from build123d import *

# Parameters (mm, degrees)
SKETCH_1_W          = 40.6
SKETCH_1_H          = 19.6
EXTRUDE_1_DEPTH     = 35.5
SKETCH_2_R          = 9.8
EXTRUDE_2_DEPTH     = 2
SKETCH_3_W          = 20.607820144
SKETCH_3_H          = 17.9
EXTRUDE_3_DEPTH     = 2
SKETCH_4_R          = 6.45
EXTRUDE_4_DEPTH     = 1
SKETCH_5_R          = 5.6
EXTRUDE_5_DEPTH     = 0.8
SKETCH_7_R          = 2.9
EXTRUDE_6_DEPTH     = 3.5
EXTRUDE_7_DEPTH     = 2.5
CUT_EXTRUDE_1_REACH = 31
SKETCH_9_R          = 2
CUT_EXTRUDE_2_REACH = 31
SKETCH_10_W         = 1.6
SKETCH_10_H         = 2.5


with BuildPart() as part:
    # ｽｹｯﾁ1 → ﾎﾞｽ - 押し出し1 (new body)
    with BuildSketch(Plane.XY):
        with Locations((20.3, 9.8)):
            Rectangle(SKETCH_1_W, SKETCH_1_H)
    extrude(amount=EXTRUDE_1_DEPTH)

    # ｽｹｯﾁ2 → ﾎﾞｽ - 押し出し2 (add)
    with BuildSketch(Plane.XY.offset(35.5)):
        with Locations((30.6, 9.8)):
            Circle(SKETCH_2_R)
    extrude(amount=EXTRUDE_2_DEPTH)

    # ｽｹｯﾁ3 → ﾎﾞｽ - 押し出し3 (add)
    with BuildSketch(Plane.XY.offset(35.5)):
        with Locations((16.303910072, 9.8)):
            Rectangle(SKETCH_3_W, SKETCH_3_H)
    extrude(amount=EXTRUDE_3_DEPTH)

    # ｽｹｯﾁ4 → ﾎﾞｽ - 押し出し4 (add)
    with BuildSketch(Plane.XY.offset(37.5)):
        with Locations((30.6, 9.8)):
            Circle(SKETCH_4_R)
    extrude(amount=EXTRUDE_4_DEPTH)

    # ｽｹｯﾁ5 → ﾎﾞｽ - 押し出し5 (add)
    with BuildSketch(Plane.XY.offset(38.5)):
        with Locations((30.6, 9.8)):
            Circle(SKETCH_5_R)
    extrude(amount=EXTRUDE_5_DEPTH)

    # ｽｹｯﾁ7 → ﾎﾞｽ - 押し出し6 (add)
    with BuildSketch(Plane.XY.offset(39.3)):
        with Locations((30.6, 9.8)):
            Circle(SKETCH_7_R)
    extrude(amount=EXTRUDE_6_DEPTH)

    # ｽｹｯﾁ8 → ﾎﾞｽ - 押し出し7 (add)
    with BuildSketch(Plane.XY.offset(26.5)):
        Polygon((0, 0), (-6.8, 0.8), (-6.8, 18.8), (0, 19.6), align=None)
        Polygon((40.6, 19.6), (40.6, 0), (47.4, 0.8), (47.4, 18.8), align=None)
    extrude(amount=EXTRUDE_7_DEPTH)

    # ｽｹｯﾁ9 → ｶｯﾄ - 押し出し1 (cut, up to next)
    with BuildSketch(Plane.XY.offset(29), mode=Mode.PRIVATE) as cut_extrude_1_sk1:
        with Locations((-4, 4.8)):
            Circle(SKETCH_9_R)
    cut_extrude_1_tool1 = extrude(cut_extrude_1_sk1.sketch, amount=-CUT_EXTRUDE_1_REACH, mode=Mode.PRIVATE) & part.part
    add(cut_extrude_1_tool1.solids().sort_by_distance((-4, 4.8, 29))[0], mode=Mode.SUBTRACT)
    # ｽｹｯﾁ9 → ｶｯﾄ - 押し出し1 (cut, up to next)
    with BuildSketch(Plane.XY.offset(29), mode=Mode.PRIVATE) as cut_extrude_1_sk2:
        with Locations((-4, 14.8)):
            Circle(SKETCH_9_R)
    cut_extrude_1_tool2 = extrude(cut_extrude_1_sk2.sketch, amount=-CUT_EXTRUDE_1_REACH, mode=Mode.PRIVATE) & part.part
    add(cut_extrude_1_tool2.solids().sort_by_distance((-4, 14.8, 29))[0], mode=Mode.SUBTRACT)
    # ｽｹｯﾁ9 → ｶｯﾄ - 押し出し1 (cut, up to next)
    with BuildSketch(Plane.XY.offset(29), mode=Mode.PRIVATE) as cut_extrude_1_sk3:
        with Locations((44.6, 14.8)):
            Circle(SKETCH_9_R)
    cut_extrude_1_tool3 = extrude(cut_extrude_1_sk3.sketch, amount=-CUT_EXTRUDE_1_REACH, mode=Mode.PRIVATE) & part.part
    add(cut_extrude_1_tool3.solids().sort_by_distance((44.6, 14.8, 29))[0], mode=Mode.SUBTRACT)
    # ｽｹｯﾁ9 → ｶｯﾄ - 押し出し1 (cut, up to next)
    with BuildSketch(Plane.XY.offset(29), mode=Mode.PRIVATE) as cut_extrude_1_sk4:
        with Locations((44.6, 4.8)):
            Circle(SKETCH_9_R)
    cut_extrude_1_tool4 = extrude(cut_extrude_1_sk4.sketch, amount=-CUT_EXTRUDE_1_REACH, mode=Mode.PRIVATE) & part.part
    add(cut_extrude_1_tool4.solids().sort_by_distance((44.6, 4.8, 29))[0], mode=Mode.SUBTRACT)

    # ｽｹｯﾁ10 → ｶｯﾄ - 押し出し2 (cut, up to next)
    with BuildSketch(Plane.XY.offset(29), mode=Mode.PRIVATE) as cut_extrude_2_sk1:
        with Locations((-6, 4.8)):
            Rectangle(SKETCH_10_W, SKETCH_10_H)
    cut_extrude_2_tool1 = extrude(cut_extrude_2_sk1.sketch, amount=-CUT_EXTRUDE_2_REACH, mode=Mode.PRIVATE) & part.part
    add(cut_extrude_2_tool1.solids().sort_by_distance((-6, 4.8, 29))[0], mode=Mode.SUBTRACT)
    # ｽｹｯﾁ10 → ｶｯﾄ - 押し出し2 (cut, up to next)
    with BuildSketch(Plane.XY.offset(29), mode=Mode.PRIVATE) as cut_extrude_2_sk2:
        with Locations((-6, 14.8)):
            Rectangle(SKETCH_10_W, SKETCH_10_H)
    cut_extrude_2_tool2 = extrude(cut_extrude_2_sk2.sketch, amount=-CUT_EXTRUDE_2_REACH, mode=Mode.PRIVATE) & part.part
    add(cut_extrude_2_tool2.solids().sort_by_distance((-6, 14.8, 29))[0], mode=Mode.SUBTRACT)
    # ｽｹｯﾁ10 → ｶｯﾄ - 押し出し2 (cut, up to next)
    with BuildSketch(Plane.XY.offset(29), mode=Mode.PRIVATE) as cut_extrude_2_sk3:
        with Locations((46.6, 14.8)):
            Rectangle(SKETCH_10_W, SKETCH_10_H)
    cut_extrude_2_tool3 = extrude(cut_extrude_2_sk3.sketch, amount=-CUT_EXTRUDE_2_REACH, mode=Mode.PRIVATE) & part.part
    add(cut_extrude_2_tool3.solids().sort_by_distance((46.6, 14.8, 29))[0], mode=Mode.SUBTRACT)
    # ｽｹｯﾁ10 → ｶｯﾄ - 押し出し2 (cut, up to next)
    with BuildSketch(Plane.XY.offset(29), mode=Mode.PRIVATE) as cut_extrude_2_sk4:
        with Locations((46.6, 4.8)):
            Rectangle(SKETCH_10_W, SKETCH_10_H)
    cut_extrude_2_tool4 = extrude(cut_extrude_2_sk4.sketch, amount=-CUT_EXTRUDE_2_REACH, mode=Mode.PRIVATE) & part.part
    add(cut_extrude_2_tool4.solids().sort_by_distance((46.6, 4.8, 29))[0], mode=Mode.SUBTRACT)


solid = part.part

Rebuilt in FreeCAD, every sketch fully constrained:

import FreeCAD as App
import Part
import Sketcher

V = App.Vector
Q = App.Units.Quantity

doc = App.newDocument("Part")
params = doc.addObject("Spreadsheet::Sheet", "Params")
for row, (alias, value) in enumerate([
    ("sketch1_width", "40.6 mm"),
    ("sketch1_height", "19.6 mm"),
    ("pad1_length", "35.5 mm"),
    ("sketch2_diameter", "19.6 mm"),
    ("pad2_length", "2 mm"),
    ("sketch3_height", "17.9 mm"),
    ("pad3_length", "2 mm"),
    ("sketch4_diameter", "12.9 mm"),
    ("pad4_length", "1 mm"),
    ("sketch5_diameter", "11.2 mm"),
    ("pad5_length", "0.8 mm"),
    ("sketch6_diameter", "5.8 mm"),
    ("pad6_length", "3.5 mm"),
    ("sketch7_height", "18 mm"),
    ("sketch7_height2", "19.6 mm"),
    ("pad7_length", "2.5 mm"),
    ("sketch8_diameter", "4 mm"),
    ("sketch9_diameter", "4 mm"),
    ("sketch10_diameter", "4 mm"),
    ("sketch11_diameter", "4 mm"),
    ("sketch12_width", "1.6 mm"),
    ("sketch12_height", "2.5 mm"),
    ("sketch13_width", "1.6 mm"),
    ("sketch13_height", "2.5 mm"),
    ("sketch14_width", "1.6 mm"),
    ("sketch14_height", "2.5 mm"),
    ("sketch15_width", "1.6 mm"),
    ("sketch15_height", "2.5 mm"),
], start=1):
    params.set(f"A{row}", alias)
    params.set(f"B{row}", "=" + value)
    params.setAlias(f"B{row}", alias)

body = doc.addObject("PartDesign::Body", "Body")

# Sketch on XY plane
sketch1 = body.newObject("Sketcher::SketchObject", "Sketch")
sketch1.AttachmentSupport = (doc.getObject("XY_Plane"), [""])
sketch1.MapMode = "FlatFace"
sketch1.addGeometry([
    Part.LineSegment(V(0, 20, 0), V(0, 0, 0)),
    Part.LineSegment(V(0, 0, 0), V(41, 0, 0)),
    Part.LineSegment(V(41, 0, 0), V(41, 20, 0)),
    Part.LineSegment(V(41, 20, 0), V(0, 20, 0)),
], False)
sketch1.addConstraint([
    Sketcher.Constraint("Coincident", 0, 2, 1, 1),
    Sketcher.Constraint("Coincident", 1, 2, 2, 1),
    Sketcher.Constraint("Coincident", 2, 2, 3, 1),
    Sketcher.Constraint("Coincident", 3, 2, 0, 1),
    Sketcher.Constraint("Vertical", 0),
    Sketcher.Constraint("Horizontal", 1),
    Sketcher.Constraint("Vertical", 2),
    Sketcher.Constraint("Horizontal", 3),
    Sketcher.Constraint("Coincident", 0, 2, -1, 1),
    Sketcher.Constraint("DistanceX", 1, 1, 1, 2, Q("40.6 mm")),
    Sketcher.Constraint("DistanceY", 0, 2, 0, 1, Q("19.6 mm")),
])
sketch1.setExpression("Constraints[9]", "Params.sketch1_width")
sketch1.setExpression("Constraints[10]", "Params.sketch1_height")
pad1 = body.newObject("PartDesign::Pad", "Pad")
pad1.Profile = sketch1
pad1.setExpression("Length", "Params.pad1_length")

# Sketch on XY plane
sketch2 = body.newObject("Sketcher::SketchObject", "Sketch001")
sketch2.AttachmentSupport = (doc.getObject("XY_Plane"), [""])
sketch2.MapMode = "FlatFace"
sketch2.AttachmentOffset = App.Placement(V(0, 0, 35.5), App.Rotation())
sketch2.addGeometry(Part.Circle(V(31, 10, 0), V(0, 0, 1), 10), False)
sketch2.addConstraint([
    Sketcher.Constraint("Diameter", 0, Q("19.6 mm")),
    Sketcher.Constraint("DistanceX", -1, 1, 0, 3, Q("30.6 mm")),
    Sketcher.Constraint("DistanceY", -1, 1, 0, 3, Q("9.8 mm")),
])
sketch2.setExpression("Constraints[0]", "Params.sketch2_diameter")
pad2 = body.newObject("PartDesign::Pad", "Pad001")
pad2.Profile = sketch2
pad2.setExpression("Length", "Params.pad2_length")

# Sketch on XY plane
sketch3 = body.newObject("Sketcher::SketchObject", "Sketch002")
sketch3.AttachmentSupport = (doc.getObject("XY_Plane"), [""])
sketch3.MapMode = "FlatFace"
sketch3.AttachmentOffset = App.Placement(V(0, 0, 35.5), App.Rotation())
sketch3.addGeometry([
    Part.LineSegment(V(6, 19, 0), V(6, 1, 0)),
    Part.LineSegment(V(6, 1, 0), V(27, 1, 0)),
    Part.LineSegment(V(27, 1, 0), V(27, 19, 0)),
    Part.LineSegment(V(27, 19, 0), V(6, 19, 0)),
], False)
sketch3.addConstraint([
    Sketcher.Constraint("Coincident", 0, 2, 1, 1),
    Sketcher.Constraint("Coincident", 1, 2, 2, 1),
    Sketcher.Constraint("Coincident", 2, 2, 3, 1),
    Sketcher.Constraint("Coincident", 3, 2, 0, 1),
    Sketcher.Constraint("Vertical", 0),
    Sketcher.Constraint("Horizontal", 1),
    Sketcher.Constraint("Vertical", 2),
    Sketcher.Constraint("Horizontal", 3),
    Sketcher.Constraint("DistanceY", 0, 2, 0, 1, Q("17.9 mm")),
    Sketcher.Constraint("DistanceX", -1, 1, 0, 2, Q("6 mm")),
    Sketcher.Constraint("DistanceY", -1, 1, 0, 2, Q("0.85 mm")),
    Sketcher.Constraint("DistanceX", 1, 1, 1, 2, Q("20.60782 mm")),
])
sketch3.setExpression("Constraints[8]", "Params.sketch3_height")
pad3 = body.newObject("PartDesign::Pad", "Pad002")
pad3.Profile = sketch3
pad3.setExpression("Length", "Params.pad3_length")

# Sketch on XY plane
sketch4 = body.newObject("Sketcher::SketchObject", "Sketch003")
sketch4.AttachmentSupport = (doc.getObject("XY_Plane"), [""])
sketch4.MapMode = "FlatFace"
sketch4.AttachmentOffset = App.Placement(V(0, 0, 37.5), App.Rotation())
sketch4.addGeometry(Part.Circle(V(31, 10, 0), V(0, 0, 1), 6), False)
sketch4.addConstraint([
    Sketcher.Constraint("Diameter", 0, Q("12.9 mm")),
    Sketcher.Constraint("DistanceX", -1, 1, 0, 3, Q("30.6 mm")),
    Sketcher.Constraint("DistanceY", -1, 1, 0, 3, Q("9.8 mm")),
])
sketch4.setExpression("Constraints[0]", "Params.sketch4_diameter")
pad4 = body.newObject("PartDesign::Pad", "Pad003")
pad4.Profile = sketch4
pad4.setExpression("Length", "Params.pad4_length")

# Sketch on XY plane
sketch5 = body.newObject("Sketcher::SketchObject", "Sketch004")
sketch5.AttachmentSupport = (doc.getObject("XY_Plane"), [""])
sketch5.MapMode = "FlatFace"
sketch5.AttachmentOffset = App.Placement(V(0, 0, 38.5), App.Rotation())
sketch5.addGeometry(Part.Circle(V(31, 10, 0), V(0, 0, 1), 6), False)
sketch5.addConstraint([
    Sketcher.Constraint("Diameter", 0, Q("11.2 mm")),
    Sketcher.Constraint("DistanceX", -1, 1, 0, 3, Q("30.6 mm")),
    Sketcher.Constraint("DistanceY", -1, 1, 0, 3, Q("9.8 mm")),
])
sketch5.setExpression("Constraints[0]", "Params.sketch5_diameter")
pad5 = body.newObject("PartDesign::Pad", "Pad004")
pad5.Profile = sketch5
pad5.setExpression("Length", "Params.pad5_length")

# Sketch on XY plane
sketch6 = body.newObject("Sketcher::SketchObject", "Sketch005")
sketch6.AttachmentSupport = (doc.getObject("XY_Plane"), [""])
sketch6.MapMode = "FlatFace"
sketch6.AttachmentOffset = App.Placement(V(0, 0, 39.3), App.Rotation())
sketch6.addGeometry(Part.Circle(V(30.6, 9.8, 0), V(0, 0, 1), 2.9), False)
sketch6.addConstraint([
    Sketcher.Constraint("Diameter", 0, Q("5.8 mm")),
    Sketcher.Constraint("DistanceX", -1, 1, 0, 3, Q("30.6 mm")),
    Sketcher.Constraint("DistanceY", -1, 1, 0, 3, Q("9.8 mm")),
])
sketch6.setExpression("Constraints[0]", "Params.sketch6_diameter")
pad6 = body.newObject("PartDesign::Pad", "Pad005")
pad6.Profile = sketch6
pad6.setExpression("Length", "Params.pad6_length")

# Sketch on XY plane
sketch7 = body.newObject("Sketcher::SketchObject", "Sketch006")
sketch7.AttachmentSupport = (doc.getObject("XY_Plane"), [""])
sketch7.MapMode = "FlatFace"
sketch7.AttachmentOffset = App.Placement(V(0, 0, 26.5), App.Rotation())
sketch7.addGeometry([
    Part.LineSegment(V(-7, 1, 0), V(0, 0, 0)),  # 0
    Part.LineSegment(V(0, 0, 0), V(0, 20, 0)),  # 1
    Part.LineSegment(V(0, 20, 0), V(-7, 19, 0)),  # 2
    Part.LineSegment(V(-7, 19, 0), V(-7, 1, 0)),  # 3
    Part.LineSegment(V(41, 20, 0), V(41, 0, 0)),  # 4
    Part.LineSegment(V(41, 0, 0), V(47, 1, 0)),  # 5
    Part.LineSegment(V(47, 1, 0), V(47, 19, 0)),  # 6
    Part.LineSegment(V(47, 19, 0), V(41, 20, 0)),  # 7
], False)
sketch7.addConstraint([
    Sketcher.Constraint("Coincident", 0, 2, 1, 1),
    Sketcher.Constraint("Coincident", 1, 2, 2, 1),
    Sketcher.Constraint("Coincident", 2, 2, 3, 1),
    Sketcher.Constraint("Coincident", 3, 2, 0, 1),
    Sketcher.Constraint("Coincident", 4, 2, 5, 1),
    Sketcher.Constraint("Coincident", 5, 2, 6, 1),
    Sketcher.Constraint("Coincident", 6, 2, 7, 1),
    Sketcher.Constraint("Coincident", 7, 2, 4, 1),
    Sketcher.Constraint("Vertical", 1),
    Sketcher.Constraint("Vertical", 3),
    Sketcher.Constraint("Vertical", 4),
    Sketcher.Constraint("Vertical", 6),
    Sketcher.Constraint("Coincident", 0, 2, -1, 1),
    Sketcher.Constraint("PointOnObject", 4, 2, -1),
    Sketcher.Constraint("Parallel", 2, 5),
    Sketcher.Constraint("Parallel", 0, 7),
    Sketcher.Constraint("Horizontal", 3, 2, 5, 2),
    Sketcher.Constraint("Horizontal", 2, 2, 6, 2),
    Sketcher.Constraint("Horizontal", 1, 2, 7, 2),
    Sketcher.Constraint("DistanceY", 3, 2, 3, 1, Q("18 mm")),
    Sketcher.Constraint("DistanceY", 1, 1, 1, 2, Q("19.6 mm")),
    Sketcher.Constraint("DistanceX", 2, 2, -1, 1, Q("6.8 mm")),
    Sketcher.Constraint("DistanceX", -1, 1, 4, 2, Q("40.6 mm")),
])
sketch7.setExpression("Constraints[19]", "Params.sketch7_height")
sketch7.setExpression("Constraints[20]", "Params.sketch7_height2")
pad7 = body.newObject("PartDesign::Pad", "Pad006")
pad7.Profile = sketch7
pad7.setExpression("Length", "Params.pad7_length")

# Sketch on XY plane
sketch8 = body.newObject("Sketcher::SketchObject", "Sketch007")
sketch8.AttachmentSupport = (doc.getObject("XY_Plane"), [""])
sketch8.MapMode = "FlatFace"
sketch8.AttachmentOffset = App.Placement(V(0, 0, 29), App.Rotation())
sketch8.addGeometry(Part.Circle(V(-4, 4.8, 0), V(0, 0, 1), 2), False)
sketch8.addConstraint([
    Sketcher.Constraint("Diameter", 0, Q("4 mm")),
    Sketcher.Constraint("DistanceX", 0, 3, -1, 1, Q("4 mm")),
    Sketcher.Constraint("DistanceY", -1, 1, 0, 3, Q("4.8 mm")),
])
sketch8.setExpression("Constraints[0]", "Params.sketch8_diameter")
pocket1 = body.newObject("PartDesign::Pocket", "Pocket")
pocket1.Profile = sketch8
pocket1.Type = "UpToFirst"

# Sketch on XY plane
sketch9 = body.newObject("Sketcher::SketchObject", "Sketch008")
sketch9.AttachmentSupport = (doc.getObject("XY_Plane"), [""])
sketch9.MapMode = "FlatFace"
sketch9.AttachmentOffset = App.Placement(V(0, 0, 29), App.Rotation())
sketch9.addGeometry(Part.Circle(V(-4, 14.8, 0), V(0, 0, 1), 2), False)
sketch9.addConstraint([
    Sketcher.Constraint("Diameter", 0, Q("4 mm")),
    Sketcher.Constraint("DistanceX", 0, 3, -1, 1, Q("4 mm")),
    Sketcher.Constraint("DistanceY", -1, 1, 0, 3, Q("14.8 mm")),
])
sketch9.setExpression("Constraints[0]", "Params.sketch9_diameter")
pocket2 = body.newObject("PartDesign::Pocket", "Pocket001")
pocket2.Profile = sketch9
pocket2.Type = "UpToFirst"

# Sketch on XY plane
sketch10 = body.newObject("Sketcher::SketchObject", "Sketch009")
sketch10.AttachmentSupport = (doc.getObject("XY_Plane"), [""])
sketch10.MapMode = "FlatFace"
sketch10.AttachmentOffset = App.Placement(V(0, 0, 29), App.Rotation())
sketch10.addGeometry(Part.Circle(V(44.6, 14.8, 0), V(0, 0, 1), 2), False)
sketch10.addConstraint([
    Sketcher.Constraint("Diameter", 0, Q("4 mm")),
    Sketcher.Constraint("DistanceX", -1, 1, 0, 3, Q("44.6 mm")),
    Sketcher.Constraint("DistanceY", -1, 1, 0, 3, Q("14.8 mm")),
])
sketch10.setExpression("Constraints[0]", "Params.sketch10_diameter")
pocket3 = body.newObject("PartDesign::Pocket", "Pocket002")
pocket3.Profile = sketch10
pocket3.Type = "UpToFirst"

# Sketch on XY plane
sketch11 = body.newObject("Sketcher::SketchObject", "Sketch010")
sketch11.AttachmentSupport = (doc.getObject("XY_Plane"), [""])
sketch11.MapMode = "FlatFace"
sketch11.AttachmentOffset = App.Placement(V(0, 0, 29), App.Rotation())
sketch11.addGeometry(Part.Circle(V(44.6, 4.8, 0), V(0, 0, 1), 2), False)
sketch11.addConstraint([
    Sketcher.Constraint("Diameter", 0, Q("4 mm")),
    Sketcher.Constraint("DistanceX", -1, 1, 0, 3, Q("44.6 mm")),
    Sketcher.Constraint("DistanceY", -1, 1, 0, 3, Q("4.8 mm")),
])
sketch11.setExpression("Constraints[0]", "Params.sketch11_diameter")
pocket4 = body.newObject("PartDesign::Pocket", "Pocket003")
pocket4.Profile = sketch11
pocket4.Type = "UpToFirst"

# Sketch on XY plane
sketch12 = body.newObject("Sketcher::SketchObject", "Sketch011")
sketch12.AttachmentSupport = (doc.getObject("XY_Plane"), [""])
sketch12.MapMode = "FlatFace"
sketch12.AttachmentOffset = App.Placement(V(0, 0, 29), App.Rotation())
sketch12.addGeometry([
    Part.LineSegment(V(-6.8, 6, 0), V(-6.8, 3.5, 0)),
    Part.LineSegment(V(-6.8, 3.5, 0), V(-5.2, 3.5, 0)),
    Part.LineSegment(V(-5.2, 3.5, 0), V(-5.2, 6, 0)),
    Part.LineSegment(V(-5.2, 6, 0), V(-6.8, 6, 0)),
], False)
sketch12.addConstraint([
    Sketcher.Constraint("Coincident", 0, 2, 1, 1),
    Sketcher.Constraint("Coincident", 1, 2, 2, 1),
    Sketcher.Constraint("Coincident", 2, 2, 3, 1),
    Sketcher.Constraint("Coincident", 3, 2, 0, 1),
    Sketcher.Constraint("Vertical", 0),
    Sketcher.Constraint("Horizontal", 1),
    Sketcher.Constraint("Vertical", 2),
    Sketcher.Constraint("Horizontal", 3),
    Sketcher.Constraint("DistanceX", 1, 1, 1, 2, Q("1.6 mm")),
    Sketcher.Constraint("DistanceY", 0, 2, 0, 1, Q("2.5 mm")),
    Sketcher.Constraint("DistanceX", 0, 2, -1, 1, Q("6.8 mm")),
    Sketcher.Constraint("DistanceY", -1, 1, 0, 2, Q("3.55 mm")),
])
sketch12.setExpression("Constraints[8]", "Params.sketch12_width")
sketch12.setExpression("Constraints[9]", "Params.sketch12_height")
pocket5 = body.newObject("PartDesign::Pocket", "Pocket004")
pocket5.Profile = sketch12
pocket5.Type = "UpToFirst"

# Sketch on XY plane
sketch13 = body.newObject("Sketcher::SketchObject", "Sketch012")
sketch13.AttachmentSupport = (doc.getObject("XY_Plane"), [""])
sketch13.MapMode = "FlatFace"
sketch13.AttachmentOffset = App.Placement(V(0, 0, 29), App.Rotation())
sketch13.addGeometry([
    Part.LineSegment(V(-6.8, 16.1, 0), V(-6.8, 13.6, 0)),
    Part.LineSegment(V(-6.8, 13.6, 0), V(-5.2, 13.6, 0)),
    Part.LineSegment(V(-5.2, 13.6, 0), V(-5.2, 16.1, 0)),
    Part.LineSegment(V(-5.2, 16.1, 0), V(-6.8, 16.1, 0)),
], False)
sketch13.addConstraint([
    Sketcher.Constraint("Coincident", 0, 2, 1, 1),
    Sketcher.Constraint("Coincident", 1, 2, 2, 1),
    Sketcher.Constraint("Coincident", 2, 2, 3, 1),
    Sketcher.Constraint("Coincident", 3, 2, 0, 1),
    Sketcher.Constraint("Vertical", 0),
    Sketcher.Constraint("Horizontal", 1),
    Sketcher.Constraint("Vertical", 2),
    Sketcher.Constraint("Horizontal", 3),
    Sketcher.Constraint("DistanceX", 1, 1, 1, 2, Q("1.6 mm")),
    Sketcher.Constraint("DistanceY", 0, 2, 0, 1, Q("2.5 mm")),
    Sketcher.Constraint("DistanceX", 0, 2, -1, 1, Q("6.8 mm")),
    Sketcher.Constraint("DistanceY", -1, 1, 0, 2, Q("13.55 mm")),
])
sketch13.setExpression("Constraints[8]", "Params.sketch13_width")
sketch13.setExpression("Constraints[9]", "Params.sketch13_height")
pocket6 = body.newObject("PartDesign::Pocket", "Pocket005")
pocket6.Profile = sketch13
pocket6.Type = "UpToFirst"

# Sketch on XY plane
sketch14 = body.newObject("Sketcher::SketchObject", "Sketch013")
sketch14.AttachmentSupport = (doc.getObject("XY_Plane"), [""])
sketch14.MapMode = "FlatFace"
sketch14.AttachmentOffset = App.Placement(V(0, 0, 29), App.Rotation())
sketch14.addGeometry([
    Part.LineSegment(V(45.8, 16.1, 0), V(45.8, 13.6, 0)),
    Part.LineSegment(V(45.8, 13.6, 0), V(47.4, 13.6, 0)),
    Part.LineSegment(V(47.4, 13.6, 0), V(47.4, 16.1, 0)),
    Part.LineSegment(V(47.4, 16.1, 0), V(45.8, 16.1, 0)),
], False)
sketch14.addConstraint([
    Sketcher.Constraint("Coincident", 0, 2, 1, 1),
    Sketcher.Constraint("Coincident", 1, 2, 2, 1),
    Sketcher.Constraint("Coincident", 2, 2, 3, 1),
    Sketcher.Constraint("Coincident", 3, 2, 0, 1),
    Sketcher.Constraint("Vertical", 0),
    Sketcher.Constraint("Horizontal", 1),
    Sketcher.Constraint("Vertical", 2),
    Sketcher.Constraint("Horizontal", 3),
    Sketcher.Constraint("DistanceX", 1, 1, 1, 2, Q("1.6 mm")),
    Sketcher.Constraint("DistanceY", 0, 2, 0, 1, Q("2.5 mm")),
    Sketcher.Constraint("DistanceX", -1, 1, 0, 2, Q("45.8 mm")),
    Sketcher.Constraint("DistanceY", -1, 1, 0, 2, Q("13.55 mm")),
])
sketch14.setExpression("Constraints[8]", "Params.sketch14_width")
sketch14.setExpression("Constraints[9]", "Params.sketch14_height")
pocket7 = body.newObject("PartDesign::Pocket", "Pocket006")
pocket7.Profile = sketch14
pocket7.Type = "UpToFirst"

# Sketch on XY plane
sketch15 = body.newObject("Sketcher::SketchObject", "Sketch014")
sketch15.AttachmentSupport = (doc.getObject("XY_Plane"), [""])
sketch15.MapMode = "FlatFace"
sketch15.AttachmentOffset = App.Placement(V(0, 0, 29), App.Rotation())
sketch15.addGeometry([
    Part.LineSegment(V(45.8, 6, 0), V(45.8, 3.5, 0)),
    Part.LineSegment(V(45.8, 3.5, 0), V(47.4, 3.5, 0)),
    Part.LineSegment(V(47.4, 3.5, 0), V(47.4, 6, 0)),
    Part.LineSegment(V(47.4, 6, 0), V(45.8, 6, 0)),
], False)
sketch15.addConstraint([
    Sketcher.Constraint("Coincident", 0, 2, 1, 1),
    Sketcher.Constraint("Coincident", 1, 2, 2, 1),
    Sketcher.Constraint("Coincident", 2, 2, 3, 1),
    Sketcher.Constraint("Coincident", 3, 2, 0, 1),
    Sketcher.Constraint("Vertical", 0),
    Sketcher.Constraint("Horizontal", 1),
    Sketcher.Constraint("Vertical", 2),
    Sketcher.Constraint("Horizontal", 3),
    Sketcher.Constraint("DistanceX", 1, 1, 1, 2, Q("1.6 mm")),
    Sketcher.Constraint("DistanceY", 0, 2, 0, 1, Q("2.5 mm")),
    Sketcher.Constraint("DistanceX", -1, 1, 0, 2, Q("45.8 mm")),
    Sketcher.Constraint("DistanceY", -1, 1, 0, 2, Q("3.55 mm")),
])
sketch15.setExpression("Constraints[8]", "Params.sketch15_width")
sketch15.setExpression("Constraints[9]", "Params.sketch15_height")
pocket8 = body.newObject("PartDesign::Pocket", "Pocket007")
pocket8.Profile = sketch15
pocket8.Type = "UpToFirst"

doc.recompute()
